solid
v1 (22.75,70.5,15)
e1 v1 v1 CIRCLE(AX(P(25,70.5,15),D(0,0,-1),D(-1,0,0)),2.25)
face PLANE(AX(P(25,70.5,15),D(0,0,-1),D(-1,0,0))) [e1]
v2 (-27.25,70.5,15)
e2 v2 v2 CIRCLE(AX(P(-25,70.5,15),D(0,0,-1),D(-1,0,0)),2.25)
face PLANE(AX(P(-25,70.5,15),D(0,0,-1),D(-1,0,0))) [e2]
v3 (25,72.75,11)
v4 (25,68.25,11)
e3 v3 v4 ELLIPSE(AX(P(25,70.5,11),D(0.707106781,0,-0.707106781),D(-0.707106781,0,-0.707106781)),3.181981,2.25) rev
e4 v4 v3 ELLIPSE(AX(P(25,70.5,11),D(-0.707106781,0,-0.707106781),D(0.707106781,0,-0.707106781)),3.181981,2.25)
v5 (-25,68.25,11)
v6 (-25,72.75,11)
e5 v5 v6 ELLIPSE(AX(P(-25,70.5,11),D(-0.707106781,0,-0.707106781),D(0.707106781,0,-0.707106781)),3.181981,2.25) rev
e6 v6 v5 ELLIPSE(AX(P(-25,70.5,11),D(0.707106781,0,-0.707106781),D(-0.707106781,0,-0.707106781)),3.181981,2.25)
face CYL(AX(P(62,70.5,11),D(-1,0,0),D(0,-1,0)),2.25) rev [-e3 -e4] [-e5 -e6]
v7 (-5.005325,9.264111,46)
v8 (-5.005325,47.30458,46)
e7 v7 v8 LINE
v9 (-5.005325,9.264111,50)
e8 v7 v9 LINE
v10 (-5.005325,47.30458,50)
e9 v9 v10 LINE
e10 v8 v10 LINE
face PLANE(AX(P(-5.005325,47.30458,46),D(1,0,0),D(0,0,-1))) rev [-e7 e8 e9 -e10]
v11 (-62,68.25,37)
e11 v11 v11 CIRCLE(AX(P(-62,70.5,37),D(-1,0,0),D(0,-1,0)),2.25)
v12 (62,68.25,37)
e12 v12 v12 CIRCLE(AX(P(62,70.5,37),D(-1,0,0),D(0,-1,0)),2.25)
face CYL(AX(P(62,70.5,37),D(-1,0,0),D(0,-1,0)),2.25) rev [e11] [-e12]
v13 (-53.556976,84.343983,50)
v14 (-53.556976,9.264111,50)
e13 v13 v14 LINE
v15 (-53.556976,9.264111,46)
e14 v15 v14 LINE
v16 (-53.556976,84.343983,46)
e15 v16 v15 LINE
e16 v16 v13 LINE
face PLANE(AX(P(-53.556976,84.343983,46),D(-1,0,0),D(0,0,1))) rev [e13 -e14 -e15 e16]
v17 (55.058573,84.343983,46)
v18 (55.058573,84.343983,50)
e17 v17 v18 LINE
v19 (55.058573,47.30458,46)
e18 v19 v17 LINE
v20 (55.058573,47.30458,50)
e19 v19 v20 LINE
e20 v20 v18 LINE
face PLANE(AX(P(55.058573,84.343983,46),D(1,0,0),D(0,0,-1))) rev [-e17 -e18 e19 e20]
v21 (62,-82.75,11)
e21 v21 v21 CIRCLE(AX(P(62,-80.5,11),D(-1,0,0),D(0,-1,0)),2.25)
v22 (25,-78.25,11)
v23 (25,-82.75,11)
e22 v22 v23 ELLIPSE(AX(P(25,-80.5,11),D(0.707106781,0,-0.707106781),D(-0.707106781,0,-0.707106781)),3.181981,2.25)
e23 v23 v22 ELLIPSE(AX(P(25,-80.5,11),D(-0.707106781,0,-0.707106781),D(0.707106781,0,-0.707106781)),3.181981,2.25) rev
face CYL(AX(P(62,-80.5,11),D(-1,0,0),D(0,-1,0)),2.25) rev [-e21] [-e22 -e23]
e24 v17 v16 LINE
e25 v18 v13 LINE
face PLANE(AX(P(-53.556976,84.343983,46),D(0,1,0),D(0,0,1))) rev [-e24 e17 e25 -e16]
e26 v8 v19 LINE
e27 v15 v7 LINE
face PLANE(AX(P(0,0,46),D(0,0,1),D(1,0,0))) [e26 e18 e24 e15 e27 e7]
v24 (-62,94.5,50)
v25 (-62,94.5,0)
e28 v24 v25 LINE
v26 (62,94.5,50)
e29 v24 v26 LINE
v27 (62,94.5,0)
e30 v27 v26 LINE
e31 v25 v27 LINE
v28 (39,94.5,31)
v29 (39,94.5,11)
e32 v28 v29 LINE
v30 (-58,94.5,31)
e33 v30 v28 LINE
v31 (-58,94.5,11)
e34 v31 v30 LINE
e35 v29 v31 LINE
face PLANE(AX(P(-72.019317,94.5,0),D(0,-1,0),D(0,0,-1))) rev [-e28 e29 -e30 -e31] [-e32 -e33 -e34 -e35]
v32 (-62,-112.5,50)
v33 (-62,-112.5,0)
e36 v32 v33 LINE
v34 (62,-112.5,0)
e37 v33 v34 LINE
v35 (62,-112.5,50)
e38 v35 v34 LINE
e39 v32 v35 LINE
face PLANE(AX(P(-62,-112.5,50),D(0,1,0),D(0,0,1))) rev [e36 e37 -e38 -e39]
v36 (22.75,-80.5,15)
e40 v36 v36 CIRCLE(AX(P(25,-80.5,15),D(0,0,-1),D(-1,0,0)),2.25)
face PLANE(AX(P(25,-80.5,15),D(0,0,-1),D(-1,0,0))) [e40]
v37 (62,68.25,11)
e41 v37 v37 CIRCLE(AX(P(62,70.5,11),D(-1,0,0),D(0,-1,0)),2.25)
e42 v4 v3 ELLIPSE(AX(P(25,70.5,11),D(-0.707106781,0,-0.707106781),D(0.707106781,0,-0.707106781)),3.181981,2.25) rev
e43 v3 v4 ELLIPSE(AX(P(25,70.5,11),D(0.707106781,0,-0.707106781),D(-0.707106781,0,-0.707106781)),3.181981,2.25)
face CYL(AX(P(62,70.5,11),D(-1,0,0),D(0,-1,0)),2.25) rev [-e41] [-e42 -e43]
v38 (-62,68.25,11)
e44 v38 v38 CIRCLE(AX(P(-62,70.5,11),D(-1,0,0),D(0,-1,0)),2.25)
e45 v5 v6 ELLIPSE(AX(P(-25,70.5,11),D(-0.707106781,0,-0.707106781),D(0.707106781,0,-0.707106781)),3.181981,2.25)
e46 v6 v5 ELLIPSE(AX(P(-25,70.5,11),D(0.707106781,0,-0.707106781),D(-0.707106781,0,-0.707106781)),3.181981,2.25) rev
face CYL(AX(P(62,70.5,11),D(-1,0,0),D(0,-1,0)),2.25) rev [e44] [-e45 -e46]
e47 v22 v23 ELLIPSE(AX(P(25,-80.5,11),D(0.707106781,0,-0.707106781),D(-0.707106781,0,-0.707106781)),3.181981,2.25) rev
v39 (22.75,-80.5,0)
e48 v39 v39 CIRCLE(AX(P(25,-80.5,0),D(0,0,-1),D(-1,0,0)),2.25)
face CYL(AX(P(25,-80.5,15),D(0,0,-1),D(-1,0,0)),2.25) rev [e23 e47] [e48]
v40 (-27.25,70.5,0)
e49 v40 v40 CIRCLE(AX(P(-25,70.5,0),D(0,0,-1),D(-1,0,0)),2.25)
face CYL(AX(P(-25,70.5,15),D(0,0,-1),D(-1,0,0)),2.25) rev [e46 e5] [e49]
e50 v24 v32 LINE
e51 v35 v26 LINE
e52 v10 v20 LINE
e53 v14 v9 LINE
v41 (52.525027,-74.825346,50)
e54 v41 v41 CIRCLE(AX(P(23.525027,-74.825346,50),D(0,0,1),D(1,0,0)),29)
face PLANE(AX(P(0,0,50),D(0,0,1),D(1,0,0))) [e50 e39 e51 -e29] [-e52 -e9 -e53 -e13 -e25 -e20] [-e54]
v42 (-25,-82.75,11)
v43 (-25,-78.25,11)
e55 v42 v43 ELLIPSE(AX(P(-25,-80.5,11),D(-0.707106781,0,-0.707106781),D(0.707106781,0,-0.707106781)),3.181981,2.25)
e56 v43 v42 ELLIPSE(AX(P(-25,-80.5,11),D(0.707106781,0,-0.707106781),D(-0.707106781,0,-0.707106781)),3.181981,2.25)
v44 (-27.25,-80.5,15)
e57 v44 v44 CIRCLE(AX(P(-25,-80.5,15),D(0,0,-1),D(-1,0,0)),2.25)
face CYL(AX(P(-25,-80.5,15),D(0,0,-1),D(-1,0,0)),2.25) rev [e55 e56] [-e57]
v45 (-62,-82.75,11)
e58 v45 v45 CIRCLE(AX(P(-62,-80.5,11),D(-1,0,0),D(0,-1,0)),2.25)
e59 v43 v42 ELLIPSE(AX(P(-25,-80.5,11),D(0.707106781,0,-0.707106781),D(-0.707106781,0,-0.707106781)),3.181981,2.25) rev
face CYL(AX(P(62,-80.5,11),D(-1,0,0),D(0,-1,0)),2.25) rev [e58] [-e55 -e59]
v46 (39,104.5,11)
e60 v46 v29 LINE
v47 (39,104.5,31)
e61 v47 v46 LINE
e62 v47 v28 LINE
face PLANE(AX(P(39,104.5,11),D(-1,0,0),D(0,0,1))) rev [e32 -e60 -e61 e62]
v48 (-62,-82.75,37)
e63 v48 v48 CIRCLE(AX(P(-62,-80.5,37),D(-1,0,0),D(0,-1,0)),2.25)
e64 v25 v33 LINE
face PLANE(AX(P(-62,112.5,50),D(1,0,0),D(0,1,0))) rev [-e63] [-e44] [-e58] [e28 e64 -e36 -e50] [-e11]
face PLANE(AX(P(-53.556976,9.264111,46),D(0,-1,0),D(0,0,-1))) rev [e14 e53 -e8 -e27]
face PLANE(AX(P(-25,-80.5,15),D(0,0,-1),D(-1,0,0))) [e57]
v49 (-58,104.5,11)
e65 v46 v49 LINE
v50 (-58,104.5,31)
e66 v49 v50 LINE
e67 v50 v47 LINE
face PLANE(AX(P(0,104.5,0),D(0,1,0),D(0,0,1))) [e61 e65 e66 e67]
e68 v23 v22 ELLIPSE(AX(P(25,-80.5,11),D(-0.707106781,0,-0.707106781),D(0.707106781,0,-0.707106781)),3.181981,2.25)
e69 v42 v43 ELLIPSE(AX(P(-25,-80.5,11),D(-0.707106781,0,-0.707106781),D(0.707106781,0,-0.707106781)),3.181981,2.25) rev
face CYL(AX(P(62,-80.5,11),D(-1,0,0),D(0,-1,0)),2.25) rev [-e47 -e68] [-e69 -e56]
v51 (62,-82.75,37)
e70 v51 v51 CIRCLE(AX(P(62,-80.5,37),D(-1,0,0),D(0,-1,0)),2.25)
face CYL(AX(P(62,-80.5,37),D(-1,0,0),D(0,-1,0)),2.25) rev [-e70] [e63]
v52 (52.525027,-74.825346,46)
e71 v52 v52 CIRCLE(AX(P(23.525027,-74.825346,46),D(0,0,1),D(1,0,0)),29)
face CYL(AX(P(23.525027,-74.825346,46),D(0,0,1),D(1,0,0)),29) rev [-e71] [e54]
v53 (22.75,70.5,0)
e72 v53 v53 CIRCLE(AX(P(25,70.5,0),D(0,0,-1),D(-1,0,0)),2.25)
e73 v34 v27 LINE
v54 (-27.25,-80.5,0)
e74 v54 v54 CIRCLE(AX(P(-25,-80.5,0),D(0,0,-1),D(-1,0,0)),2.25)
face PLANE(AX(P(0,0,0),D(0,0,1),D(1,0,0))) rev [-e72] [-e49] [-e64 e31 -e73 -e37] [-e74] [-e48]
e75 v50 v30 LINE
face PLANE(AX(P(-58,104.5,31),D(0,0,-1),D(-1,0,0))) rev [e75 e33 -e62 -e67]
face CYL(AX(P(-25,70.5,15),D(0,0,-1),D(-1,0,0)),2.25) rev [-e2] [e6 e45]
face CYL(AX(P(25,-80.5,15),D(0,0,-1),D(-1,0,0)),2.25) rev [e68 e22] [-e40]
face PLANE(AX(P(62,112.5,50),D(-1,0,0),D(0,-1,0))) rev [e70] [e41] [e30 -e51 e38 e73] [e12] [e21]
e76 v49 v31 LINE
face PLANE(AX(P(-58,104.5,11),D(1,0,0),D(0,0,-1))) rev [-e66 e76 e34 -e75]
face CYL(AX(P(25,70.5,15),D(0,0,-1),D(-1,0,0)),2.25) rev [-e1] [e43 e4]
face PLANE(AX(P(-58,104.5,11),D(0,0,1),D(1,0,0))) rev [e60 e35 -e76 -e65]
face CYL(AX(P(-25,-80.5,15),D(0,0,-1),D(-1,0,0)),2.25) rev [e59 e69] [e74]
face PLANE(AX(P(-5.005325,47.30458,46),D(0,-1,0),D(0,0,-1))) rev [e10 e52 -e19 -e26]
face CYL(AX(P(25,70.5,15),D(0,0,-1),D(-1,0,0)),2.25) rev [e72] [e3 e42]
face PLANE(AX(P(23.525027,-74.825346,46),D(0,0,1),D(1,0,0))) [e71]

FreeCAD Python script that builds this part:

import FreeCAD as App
import Part
import Sketcher

V = App.Vector


def add_polygon(sketch, points):
    """Adds a closed chain of lines whose ends are joined by coincident constraints."""
    first, n = sketch.GeometryCount, len(points)
    for a, b in zip(points, points[1:] + points[:1]):
        sketch.addGeometry(Part.LineSegment(App.Vector(*a, 0), App.Vector(*b, 0)), False)
    for i in range(n):
        sketch.addConstraint(Sketcher.Constraint("Coincident", first + i, 2, first + (i + 1) % n, 1))

doc = App.newDocument("Part")
body = doc.addObject("PartDesign::Body", "Body")

# Sketch on XY plane
sketch1 = body.newObject("Sketcher::SketchObject", "Sketch")
sketch1.AttachmentSupport = (doc.getObject("XY_Plane"), [""])
sketch1.MapMode = "FlatFace"
add_polygon(sketch1, [(-62, 112), (-62, -112), (62, -112), (62, 112)])  # lines 0-3
sketch1.addConstraint([
    Sketcher.Constraint("Vertical", 0),
    Sketcher.Constraint("Horizontal", 1),
    Sketcher.Constraint("Vertical", 2),
    Sketcher.Constraint("Horizontal", 3),
    Sketcher.Constraint("Symmetric", 0, 2, 2, 2, -1, 1),
    Sketcher.Constraint("DistanceX", 1, 1, 1, 2, 124.0),
    Sketcher.Constraint("DistanceY", 0, 2, 0, 1, 225.0),
])
pad1 = body.newObject("PartDesign::Pad", "Pad")
pad1.Profile = sketch1
pad1.Length = 50

# Sketch on XY plane
sketch2 = body.newObject("Sketcher::SketchObject", "Sketch001")
sketch2.AttachmentSupport = (doc.getObject("XY_Plane"), [""])
sketch2.MapMode = "FlatFace"
sketch2.AttachmentOffset = App.Placement(V(0, 0, 50), App.Rotation())
add_polygon(sketch2, [(-72, 112), (-72, 94), (70, 94), (70, 112)])  # lines 0-3
sketch2.addConstraint([
    Sketcher.Constraint("Vertical", 0),
    Sketcher.Constraint("Horizontal", 1),
    Sketcher.Constraint("Vertical", 2),
    Sketcher.Constraint("Horizontal", 3),
    Sketcher.Constraint("DistanceY", 0, 2, 0, 1, 18.0),
    Sketcher.Constraint("DistanceY", -1, 1, 0, 2, 94.5),
    Sketcher.Constraint("DistanceX", 1, 1, 1, 2, 142.142792),
    Sketcher.Constraint("DistanceX", 0, 2, -1, 1, 72.019317),
])
pocket1 = body.newObject("PartDesign::Pocket", "Pocket")
pocket1.Profile = sketch2
pocket1.Length = 50

# Sketch on XZ plane
sketch3 = body.newObject("Sketcher::SketchObject", "Sketch002")
sketch3.AttachmentSupport = (doc.getObject("XZ_Plane"), [""])
sketch3.MapMode = "FlatFace"
sketch3.AttachmentOffset = App.Placement(V(0, 0, -94.5), App.Rotation())
add_polygon(sketch3, [(-58, 11), (-58, 31), (39, 31), (39, 11)])  # lines 0-3
sketch3.addConstraint([
    Sketcher.Constraint("Vertical", 0),
    Sketcher.Constraint("Horizontal", 1),
    Sketcher.Constraint("Vertical", 2),
    Sketcher.Constraint("Horizontal", 3),
    Sketcher.Constraint("DistanceX", 1, 1, 1, 2, 97.0),
    Sketcher.Constraint("DistanceY", 0, 1, 0, 2, 20.0),
    Sketcher.Constraint("DistanceX", 0, 2, -1, 1, 58.0),
    Sketcher.Constraint("DistanceY", -1, 1, 0, 2, 31.0),
])
pad2 = body.newObject("PartDesign::Pad", "Pad001")
pad2.Profile = sketch3
pad2.Length = 10
pad2.Reversed = True

# Sketch on XY plane
sketch4 = body.newObject("Sketcher::SketchObject", "Sketch003")
sketch4.AttachmentSupport = (doc.getObject("XY_Plane"), [""])
sketch4.MapMode = "FlatFace"
sketch4.AttachmentOffset = App.Placement(V(0, 0, 50), App.Rotation())
sketch4.addGeometry(Part.Circle(V(24, -75, 0), V(0, 0, 1), 29), False)  # 0
add_polygon(sketch4, [(55, 84), (-54, 84), (-54, 9), (-5, 9), (-5, 47), (55, 47)])  # lines 1-6
sketch4.addConstraint([
    Sketcher.Constraint("Horizontal", 1),
    Sketcher.Constraint("Vertical", 2),
    Sketcher.Constraint("Horizontal", 3),
    Sketcher.Constraint("Vertical", 4),
    Sketcher.Constraint("Horizontal", 5),
    Sketcher.Constraint("Vertical", 6),
    Sketcher.Constraint("Diameter", 0, 58.0),
    Sketcher.Constraint("DistanceX", 5, 1, 5, 2, 60.063898),
    Sketcher.Constraint("DistanceX", 1, 2, 1, 1, 108.615549),
    Sketcher.Constraint("DistanceY", 4, 1, 4, 2, 38.040469),
    Sketcher.Constraint("DistanceY", 2, 2, 2, 1, 75.079873),
    Sketcher.Constraint("DistanceY", -1, 1, 2, 2, 9.264111),
    Sketcher.Constraint("DistanceY", 0, 3, 1, 2, 159.16933),
    Sketcher.Constraint("DistanceX", 3, 2, 0, 3, 28.530352),
    Sketcher.Constraint("DistanceX", -1, 1, 0, 3, 23.525027),
])
pocket2 = body.newObject("PartDesign::Pocket", "Pocket001")
pocket2.Profile = sketch4
pocket2.Length = 4

# Sketch on XY plane
sketch5 = body.newObject("Sketcher::SketchObject", "Sketch004")
sketch5.AttachmentSupport = (doc.getObject("XY_Plane"), [""])
sketch5.MapMode = "FlatFace"
sketch5.addGeometry([
    Part.Circle(V(25, 70.5, 0), V(0, 0, 1), 2.2),
    Part.Circle(V(-25, 70.5, 0), V(0, 0, 1), 2.2),
    Part.Circle(V(-25, -80.5, 0), V(0, 0, 1), 2.2),
    Part.Circle(V(25, -80.5, 0), V(0, 0, 1), 2.2),
], False)
sketch5.addConstraint([
    Sketcher.Constraint("Equal", 0, 1),
    Sketcher.Constraint("Equal", 1, 2),
    Sketcher.Constraint("Equal", 2, 3),
    Sketcher.Constraint("Symmetric", 0, 3, 1, 3, -2),
    Sketcher.Constraint("Symmetric", 2, 3, 3, 3, -2),
    Sketcher.Constraint("Vertical", 1, 3, 2, 3),
    Sketcher.Constraint("Diameter", 0, 4.5),
    Sketcher.Constraint("DistanceX", -1, 1, 0, 3, 25.0),
    Sketcher.Constraint("DistanceY", 2, 3, 1, 3, 151.0),
    Sketcher.Constraint("DistanceY", -1, 1, 0, 3, 70.5),
])
pocket3 = body.newObject("PartDesign::Pocket", "Pocket002")
pocket3.Profile = sketch5
pocket3.Length = 15
pocket3.Reversed = True

# Sketch on YZ plane
sketch6 = body.newObject("Sketcher::SketchObject", "Sketch005")
sketch6.AttachmentSupport = (doc.getObject("YZ_Plane"), [""])
sketch6.MapMode = "FlatFace"
sketch6.AttachmentOffset = App.Placement(V(0, 0, -62), App.Rotation())
sketch6.addGeometry([
    Part.Circle(V(70.5, 11, 0), V(0, 0, 1), 2.2),
    Part.Circle(V(70.5, 37, 0), V(0, 0, 1), 2.2),
    Part.Circle(V(-80.5, 37, 0), V(0, 0, 1), 2.2),
    Part.Circle(V(-80.5, 11, 0), V(0, 0, 1), 2.2),
], False)
sketch6.addConstraint([
    Sketcher.Constraint("Equal", 0, 1),
    Sketcher.Constraint("Equal", 1, 2),
    Sketcher.Constraint("Equal", 2, 3),
    Sketcher.Constraint("Horizontal", 1, 3, 2, 3),
    Sketcher.Constraint("Horizontal", 0, 3, 3, 3),
    Sketcher.Constraint("Vertical", 0, 3, 1, 3),
    Sketcher.Constraint("Vertical", 2, 3, 3, 3),
    Sketcher.Constraint("Diameter", 0, 4.5),
    Sketcher.Constraint("DistanceY", -1, 1, 0, 3, 11.0),
    Sketcher.Constraint("DistanceY", -1, 1, 1, 3, 37.0),
    Sketcher.Constraint("DistanceX", 2, 3, 1, 3, 151.0),
    Sketcher.Constraint("DistanceX", -1, 1, 0, 3, 70.5),
])
pocket4 = body.newObject("PartDesign::Pocket", "Pocket003")
pocket4.Profile = sketch6
pocket4.Type = "ThroughAll"
pocket4.Reversed = True

doc.recompute()
